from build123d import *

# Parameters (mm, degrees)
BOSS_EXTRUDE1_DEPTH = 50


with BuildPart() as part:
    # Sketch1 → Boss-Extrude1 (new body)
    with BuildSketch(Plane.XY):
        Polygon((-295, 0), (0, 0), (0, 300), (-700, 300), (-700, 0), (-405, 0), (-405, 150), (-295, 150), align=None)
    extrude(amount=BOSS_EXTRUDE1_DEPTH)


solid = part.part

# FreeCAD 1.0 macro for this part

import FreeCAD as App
import Part
import Sketcher
from FreeCAD import Vector
Q = App.Units.Quantity


def add_polygon(sketch, points):
    """Adds a closed chain of lines whose ends are joined by coincident constraints."""
    first, n = sketch.GeometryCount, len(points)
    for a, b in zip(points, points[1:] + points[:1]):
        sketch.addGeometry(Part.LineSegment(App.Vector(*a, 0), App.Vector(*b, 0)), False)
    for i in range(n):
        sketch.addConstraint(Sketcher.Constraint("Coincident", first + i, 2, first + (i + 1) % n, 1))

doc = App.newDocument("Part")
body = doc.addObject("PartDesign::Body", "Body")

# Sketch on XY plane
sketch1 = body.newObject("Sketcher::SketchObject", "Sketch")
sketch1.AttachmentSupport = (doc.getObject("XY_Plane"), [""])
sketch1.MapMode = "FlatFace"
add_polygon(sketch1, [(-295, 0), (0, 0), (0, 300), (-700, 300), (-700, 0), (-405, 0), (-405, 150), (-295, 150)])  # lines 0-7
sketch1.addConstraint([
    Sketcher.Constraint("Horizontal", 0),
    Sketcher.Constraint("Vertical", 1),
    Sketcher.Constraint("Horizontal", 2),
    Sketcher.Constraint("Vertical", 3),
    Sketcher.Constraint("Horizontal", 4),
    Sketcher.Constraint("Vertical", 5),
    Sketcher.Constraint("Horizontal", 6),
    Sketcher.Constraint("Vertical", 7),
    Sketcher.Constraint("Coincident", 0, 2, -1, 1),
    Sketcher.Constraint("PointOnObject", 3, 2, -1),
    Sketcher.Constraint("Equal", 0, 4),
    Sketcher.Constraint("DistanceX", 0, 1, 0, 2, Q("295 mm")),
    Sketcher.Constraint("DistanceX", 2, 2, 2, 1, Q("700 mm")),
    Sketcher.Constraint("DistanceY", 1, 1, 1, 2, Q("300 mm")),
    Sketcher.Constraint("DistanceY", 5, 1, 5, 2, Q("150 mm")),
])
pad1 = body.newObject("PartDesign::Pad", "Pad")
pad1.Profile = sketch1
pad1.Length = 50

doc.recompute()
